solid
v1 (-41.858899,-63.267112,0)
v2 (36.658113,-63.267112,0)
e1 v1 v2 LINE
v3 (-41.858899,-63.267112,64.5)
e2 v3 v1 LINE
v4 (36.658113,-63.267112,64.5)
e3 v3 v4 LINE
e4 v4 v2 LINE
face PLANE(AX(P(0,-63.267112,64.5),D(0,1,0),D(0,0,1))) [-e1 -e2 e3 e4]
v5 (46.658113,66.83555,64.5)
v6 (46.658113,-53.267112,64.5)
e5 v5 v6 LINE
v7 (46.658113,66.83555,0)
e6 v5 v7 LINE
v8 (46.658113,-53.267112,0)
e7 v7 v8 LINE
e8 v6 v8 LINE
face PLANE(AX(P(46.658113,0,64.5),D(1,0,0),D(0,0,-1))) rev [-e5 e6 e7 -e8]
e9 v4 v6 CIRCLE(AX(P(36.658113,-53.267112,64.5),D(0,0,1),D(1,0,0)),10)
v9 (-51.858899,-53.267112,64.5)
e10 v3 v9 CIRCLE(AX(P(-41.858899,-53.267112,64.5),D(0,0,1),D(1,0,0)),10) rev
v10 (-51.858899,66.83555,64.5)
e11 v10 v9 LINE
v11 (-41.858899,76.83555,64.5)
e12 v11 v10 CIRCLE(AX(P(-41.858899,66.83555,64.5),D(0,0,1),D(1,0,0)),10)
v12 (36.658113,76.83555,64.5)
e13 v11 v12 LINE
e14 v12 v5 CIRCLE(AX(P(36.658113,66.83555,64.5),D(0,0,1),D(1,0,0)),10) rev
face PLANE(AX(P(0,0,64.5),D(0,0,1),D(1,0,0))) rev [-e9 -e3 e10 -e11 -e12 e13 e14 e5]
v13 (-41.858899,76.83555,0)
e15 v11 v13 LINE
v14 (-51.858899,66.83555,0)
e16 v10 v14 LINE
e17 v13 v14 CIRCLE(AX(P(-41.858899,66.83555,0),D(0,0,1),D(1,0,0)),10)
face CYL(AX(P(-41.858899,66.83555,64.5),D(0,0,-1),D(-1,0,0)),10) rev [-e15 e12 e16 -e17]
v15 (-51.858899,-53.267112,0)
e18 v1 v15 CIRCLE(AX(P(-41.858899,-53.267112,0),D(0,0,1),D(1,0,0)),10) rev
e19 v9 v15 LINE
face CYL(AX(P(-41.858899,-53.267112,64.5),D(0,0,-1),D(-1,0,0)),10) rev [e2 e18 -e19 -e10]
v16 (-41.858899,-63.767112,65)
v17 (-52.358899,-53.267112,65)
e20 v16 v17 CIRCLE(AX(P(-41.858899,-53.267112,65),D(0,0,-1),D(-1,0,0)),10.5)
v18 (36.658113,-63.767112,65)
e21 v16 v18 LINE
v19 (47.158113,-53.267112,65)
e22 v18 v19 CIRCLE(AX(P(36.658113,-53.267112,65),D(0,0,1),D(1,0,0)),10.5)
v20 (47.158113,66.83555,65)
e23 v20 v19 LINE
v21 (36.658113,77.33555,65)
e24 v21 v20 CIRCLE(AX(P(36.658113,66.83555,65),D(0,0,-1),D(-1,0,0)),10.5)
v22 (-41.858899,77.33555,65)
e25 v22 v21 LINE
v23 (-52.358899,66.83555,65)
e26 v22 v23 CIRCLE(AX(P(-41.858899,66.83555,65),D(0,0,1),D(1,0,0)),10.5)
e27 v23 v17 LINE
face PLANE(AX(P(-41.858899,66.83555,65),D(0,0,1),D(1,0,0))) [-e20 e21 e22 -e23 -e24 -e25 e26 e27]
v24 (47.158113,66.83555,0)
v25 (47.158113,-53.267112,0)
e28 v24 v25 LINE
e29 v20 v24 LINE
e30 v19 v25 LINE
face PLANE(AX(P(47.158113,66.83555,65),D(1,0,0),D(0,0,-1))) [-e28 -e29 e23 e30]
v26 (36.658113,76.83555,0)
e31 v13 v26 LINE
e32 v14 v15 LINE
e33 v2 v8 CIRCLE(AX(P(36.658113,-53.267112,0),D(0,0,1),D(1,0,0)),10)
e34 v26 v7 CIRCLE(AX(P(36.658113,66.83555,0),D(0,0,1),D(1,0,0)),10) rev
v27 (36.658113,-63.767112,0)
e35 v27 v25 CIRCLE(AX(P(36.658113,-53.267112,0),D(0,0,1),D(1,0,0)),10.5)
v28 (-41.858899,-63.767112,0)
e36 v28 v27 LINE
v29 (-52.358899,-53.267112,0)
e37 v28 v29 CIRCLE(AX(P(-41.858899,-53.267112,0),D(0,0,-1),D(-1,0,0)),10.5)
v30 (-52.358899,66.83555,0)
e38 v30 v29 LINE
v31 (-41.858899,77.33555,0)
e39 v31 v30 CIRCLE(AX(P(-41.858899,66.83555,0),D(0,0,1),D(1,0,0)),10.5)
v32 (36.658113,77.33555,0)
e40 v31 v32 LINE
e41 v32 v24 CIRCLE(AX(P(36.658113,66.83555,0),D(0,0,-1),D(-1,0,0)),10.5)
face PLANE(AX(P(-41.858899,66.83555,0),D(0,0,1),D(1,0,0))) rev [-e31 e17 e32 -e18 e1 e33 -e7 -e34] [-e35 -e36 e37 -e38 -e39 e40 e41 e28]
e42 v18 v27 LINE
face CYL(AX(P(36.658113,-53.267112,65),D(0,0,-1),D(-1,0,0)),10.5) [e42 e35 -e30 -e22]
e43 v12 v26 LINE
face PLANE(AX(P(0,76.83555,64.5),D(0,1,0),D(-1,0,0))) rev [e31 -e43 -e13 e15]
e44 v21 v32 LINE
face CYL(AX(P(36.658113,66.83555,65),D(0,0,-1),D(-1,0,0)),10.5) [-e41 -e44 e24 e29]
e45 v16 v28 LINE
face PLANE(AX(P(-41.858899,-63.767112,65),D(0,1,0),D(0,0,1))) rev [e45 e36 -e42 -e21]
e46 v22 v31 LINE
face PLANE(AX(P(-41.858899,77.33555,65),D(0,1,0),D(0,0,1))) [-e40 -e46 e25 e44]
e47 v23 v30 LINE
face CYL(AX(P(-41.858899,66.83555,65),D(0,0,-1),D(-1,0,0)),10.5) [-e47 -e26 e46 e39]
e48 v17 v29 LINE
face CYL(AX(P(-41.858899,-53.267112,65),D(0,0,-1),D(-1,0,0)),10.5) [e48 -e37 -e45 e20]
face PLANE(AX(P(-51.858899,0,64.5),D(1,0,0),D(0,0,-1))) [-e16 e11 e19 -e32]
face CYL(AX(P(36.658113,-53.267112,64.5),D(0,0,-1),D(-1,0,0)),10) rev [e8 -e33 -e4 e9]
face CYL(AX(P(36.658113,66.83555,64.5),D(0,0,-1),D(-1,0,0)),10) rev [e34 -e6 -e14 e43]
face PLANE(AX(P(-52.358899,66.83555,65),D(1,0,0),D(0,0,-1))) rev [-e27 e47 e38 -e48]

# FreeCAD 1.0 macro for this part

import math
import FreeCAD as App
import Part
import Sketcher
from FreeCAD import Vector
Q = App.Units.Quantity

doc = App.newDocument("Part")
body = doc.addObject("PartDesign::Body", "Body")

# Sketch on XY plane
sketch1 = body.newObject("Sketcher::SketchObject", "Sketch")
sketch1.AttachmentSupport = (doc.getObject("XY_Plane"), [""])
sketch1.MapMode = "FlatFace"
sketch1.addGeometry([
    Part.LineSegment(Vector(36.658113, 77.33555, 0), Vector(-41.858899, 77.33555, 0)),  # 0
    Part.ArcOfCircle(Part.Circle(Vector(-41.858899, 66.83555, 0), Vector(0, 0, 1), 10.5), math.radians(90), math.radians(180)),  # 1
    Part.LineSegment(Vector(-52.358899, 66.83555, 0), Vector(-52.358899, -53.267112, 0)),  # 2
    Part.ArcOfCircle(Part.Circle(Vector(-41.858899, -53.267112, 0), Vector(0, 0, 1), 10.5), math.radians(180), math.radians(270)),  # 3
    Part.LineSegment(Vector(-41.858899, -63.767112, 0), Vector(36.658113, -63.767112, 0)),  # 4
    Part.ArcOfCircle(Part.Circle(Vector(36.658113, -53.267112, 0), Vector(0, 0, 1), 10.5), math.radians(-90), math.radians(0)),  # 5
    Part.LineSegment(Vector(47.158113, -53.267112, 0), Vector(47.158113, 66.83555, 0)),  # 6
    Part.ArcOfCircle(Part.Circle(Vector(36.658113, 66.83555, 0), Vector(0, 0, 1), 10.5), math.radians(0), math.radians(90)),  # 7
], False)
sketch1.addConstraint([
    Sketcher.Constraint("Tangent", 0, 2, 1, 1),
    Sketcher.Constraint("Tangent", 1, 2, 2, 1),
    Sketcher.Constraint("Tangent", 2, 2, 3, 1),
    Sketcher.Constraint("Tangent", 3, 2, 4, 1),
    Sketcher.Constraint("Tangent", 4, 2, 5, 1),
    Sketcher.Constraint("Tangent", 5, 2, 6, 1),
    Sketcher.Constraint("Tangent", 6, 2, 7, 1),
    Sketcher.Constraint("Tangent", 7, 2, 0, 1),
    Sketcher.Constraint("Horizontal", 0),
    Sketcher.Constraint("Vertical", 2),
    Sketcher.Constraint("Horizontal", 4),
    Sketcher.Constraint("Vertical", 6),
    Sketcher.Constraint("Equal", 1, 3),
    Sketcher.Constraint("Equal", 3, 5),
    Sketcher.Constraint("Equal", 5, 7),
    Sketcher.Constraint("Radius", 1, Q("10.5 mm")),
    Sketcher.Constraint("DistanceX", 0, 2, 0, 1, Q("78.517012 mm")),
    Sketcher.Constraint("DistanceX", 1, 3, -1, 1, Q("41.858899 mm")),
    Sketcher.Constraint("DistanceY", 2, 2, 2, 1, Q("120.102662 mm")),
    Sketcher.Constraint("DistanceY", -1, 1, 1, 3, Q("66.83555 mm")),
])
pad1 = body.newObject("PartDesign::Pad", "Pad")
pad1.Profile = sketch1
pad1.Length = 65

# Sketch on XY plane
sketch2 = body.newObject("Sketcher::SketchObject", "Sketch001")
sketch2.AttachmentSupport = (doc.getObject("XY_Plane"), [""])
sketch2.MapMode = "FlatFace"
sketch2.addGeometry([
    Part.LineSegment(Vector(36.658113, 76.83555, 0), Vector(-41.858899, 76.83555, 0)),  # 0
    Part.ArcOfCircle(Part.Circle(Vector(-41.858899, 66.83555, 0), Vector(0, 0, 1), 10), math.radians(90), math.radians(180)),  # 1
    Part.LineSegment(Vector(-51.858899, 66.83555, 0), Vector(-51.858899, -53.267112, 0)),  # 2
    Part.ArcOfCircle(Part.Circle(Vector(-41.858899, -53.267112, 0), Vector(0, 0, 1), 10), math.radians(-180), math.radians(-90)),  # 3
    Part.LineSegment(Vector(-41.858899, -63.267112, 0), Vector(36.658113, -63.267112, 0)),  # 4
    Part.ArcOfCircle(Part.Circle(Vector(36.658113, -53.267112, 0), Vector(0, 0, 1), 10), math.radians(-90), math.radians(0)),  # 5
    Part.LineSegment(Vector(46.658113, -53.267112, 0), Vector(46.658113, 66.83555, 0)),  # 6
    Part.ArcOfCircle(Part.Circle(Vector(36.658113, 66.83555, 0), Vector(0, 0, 1), 10), math.radians(0), math.radians(90)),  # 7
], False)
sketch2.addConstraint([
    Sketcher.Constraint("Tangent", 0, 2, 1, 1),
    Sketcher.Constraint("Tangent", 1, 2, 2, 1),
    Sketcher.Constraint("Tangent", 2, 2, 3, 1),
    Sketcher.Constraint("Tangent", 3, 2, 4, 1),
    Sketcher.Constraint("Tangent", 4, 2, 5, 1),
    Sketcher.Constraint("Tangent", 5, 2, 6, 1),
    Sketcher.Constraint("Tangent", 6, 2, 7, 1),
    Sketcher.Constraint("Tangent", 7, 2, 0, 1),
    Sketcher.Constraint("Horizontal", 0),
    Sketcher.Constraint("Vertical", 2),
    Sketcher.Constraint("Horizontal", 4),
    Sketcher.Constraint("Vertical", 6),
    Sketcher.Constraint("Equal", 1, 3),
    Sketcher.Constraint("Equal", 3, 5),
    Sketcher.Constraint("Equal", 5, 7),
    Sketcher.Constraint("Radius", 1, Q("10 mm")),
    Sketcher.Constraint("DistanceX", 0, 2, 0, 1, Q("78.517012 mm")),
    Sketcher.Constraint("DistanceX", 1, 3, -1, 1, Q("41.858899 mm")),
    Sketcher.Constraint("DistanceY", 2, 2, 2, 1, Q("120.102662 mm")),
    Sketcher.Constraint("DistanceY", -1, 1, 1, 3, Q("66.83555 mm")),
])
pocket1 = body.newObject("PartDesign::Pocket", "Pocket")
pocket1.Profile = sketch2
pocket1.Length = 64.5
pocket1.Reversed = True

doc.recompute()
